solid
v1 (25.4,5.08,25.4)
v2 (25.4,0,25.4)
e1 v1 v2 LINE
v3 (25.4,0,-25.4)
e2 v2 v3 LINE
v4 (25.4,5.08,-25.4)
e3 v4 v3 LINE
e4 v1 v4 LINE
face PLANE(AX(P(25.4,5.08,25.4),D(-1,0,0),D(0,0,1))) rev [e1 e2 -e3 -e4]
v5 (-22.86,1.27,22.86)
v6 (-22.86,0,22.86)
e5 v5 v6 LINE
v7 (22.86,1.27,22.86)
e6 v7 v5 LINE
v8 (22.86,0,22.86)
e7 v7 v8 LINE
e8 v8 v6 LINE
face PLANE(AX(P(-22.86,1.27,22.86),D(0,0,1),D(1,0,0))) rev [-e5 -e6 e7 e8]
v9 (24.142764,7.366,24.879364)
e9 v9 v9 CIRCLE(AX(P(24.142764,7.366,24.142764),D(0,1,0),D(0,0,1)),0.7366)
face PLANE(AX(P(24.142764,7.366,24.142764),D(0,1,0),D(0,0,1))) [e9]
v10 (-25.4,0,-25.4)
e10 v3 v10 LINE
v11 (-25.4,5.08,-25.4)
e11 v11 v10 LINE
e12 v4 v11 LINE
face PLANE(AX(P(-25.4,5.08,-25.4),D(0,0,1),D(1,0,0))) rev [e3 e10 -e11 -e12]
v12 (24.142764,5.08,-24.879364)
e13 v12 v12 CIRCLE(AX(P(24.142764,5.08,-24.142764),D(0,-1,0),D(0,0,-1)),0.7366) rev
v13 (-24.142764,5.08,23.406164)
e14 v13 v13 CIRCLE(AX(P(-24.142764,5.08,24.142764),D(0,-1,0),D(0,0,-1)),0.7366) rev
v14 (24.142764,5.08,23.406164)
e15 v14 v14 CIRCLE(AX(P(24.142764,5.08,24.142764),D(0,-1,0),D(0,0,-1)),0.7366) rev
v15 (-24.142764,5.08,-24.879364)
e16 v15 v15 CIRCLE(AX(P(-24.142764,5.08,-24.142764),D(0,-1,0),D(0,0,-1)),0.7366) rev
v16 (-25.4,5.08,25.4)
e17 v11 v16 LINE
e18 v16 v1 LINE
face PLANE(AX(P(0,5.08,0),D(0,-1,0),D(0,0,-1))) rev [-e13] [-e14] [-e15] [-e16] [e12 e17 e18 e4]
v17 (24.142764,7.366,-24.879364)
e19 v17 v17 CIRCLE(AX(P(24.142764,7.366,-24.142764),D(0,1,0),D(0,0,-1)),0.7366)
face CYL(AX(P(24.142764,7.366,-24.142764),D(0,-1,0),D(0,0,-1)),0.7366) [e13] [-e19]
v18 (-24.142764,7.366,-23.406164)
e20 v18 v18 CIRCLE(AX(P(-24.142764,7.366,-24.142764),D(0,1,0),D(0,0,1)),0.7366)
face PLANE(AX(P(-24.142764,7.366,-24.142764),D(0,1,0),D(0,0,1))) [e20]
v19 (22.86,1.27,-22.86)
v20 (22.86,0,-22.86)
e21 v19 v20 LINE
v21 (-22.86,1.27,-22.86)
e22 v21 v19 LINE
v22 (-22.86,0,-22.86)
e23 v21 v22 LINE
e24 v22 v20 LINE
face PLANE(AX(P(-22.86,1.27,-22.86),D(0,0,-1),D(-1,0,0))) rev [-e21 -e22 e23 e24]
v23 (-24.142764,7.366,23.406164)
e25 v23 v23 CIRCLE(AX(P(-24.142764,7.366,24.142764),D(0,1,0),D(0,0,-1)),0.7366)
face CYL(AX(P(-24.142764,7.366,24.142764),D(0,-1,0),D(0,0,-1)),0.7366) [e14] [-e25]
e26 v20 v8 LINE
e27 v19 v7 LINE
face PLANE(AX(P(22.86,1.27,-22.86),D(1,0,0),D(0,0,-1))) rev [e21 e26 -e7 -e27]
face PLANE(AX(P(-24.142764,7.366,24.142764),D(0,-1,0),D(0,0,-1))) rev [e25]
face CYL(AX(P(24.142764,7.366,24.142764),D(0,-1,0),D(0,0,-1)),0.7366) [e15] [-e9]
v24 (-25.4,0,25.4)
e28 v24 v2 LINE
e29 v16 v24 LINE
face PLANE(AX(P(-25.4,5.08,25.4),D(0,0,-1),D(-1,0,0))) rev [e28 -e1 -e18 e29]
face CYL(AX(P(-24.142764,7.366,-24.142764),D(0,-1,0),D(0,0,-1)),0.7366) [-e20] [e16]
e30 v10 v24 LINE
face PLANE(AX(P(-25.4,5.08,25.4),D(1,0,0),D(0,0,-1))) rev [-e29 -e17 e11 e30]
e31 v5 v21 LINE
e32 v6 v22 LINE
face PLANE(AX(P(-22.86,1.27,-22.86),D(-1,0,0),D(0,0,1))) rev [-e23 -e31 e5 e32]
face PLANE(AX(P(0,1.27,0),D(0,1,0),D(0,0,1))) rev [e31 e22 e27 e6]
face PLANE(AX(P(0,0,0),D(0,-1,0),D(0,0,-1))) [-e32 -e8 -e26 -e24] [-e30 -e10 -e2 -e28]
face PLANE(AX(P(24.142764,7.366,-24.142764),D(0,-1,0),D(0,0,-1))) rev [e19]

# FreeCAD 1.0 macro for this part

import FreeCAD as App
import Part
import Sketcher

V = App.Vector
Q = App.Units.Quantity

doc = App.newDocument("Part")
body = doc.addObject("PartDesign::Body", "Body")

# Sketch on XZ plane
sketch1 = body.newObject("Sketcher::SketchObject", "Sketch")
sketch1.AttachmentSupport = (doc.getObject("XZ_Plane"), [""])
sketch1.MapMode = "FlatFace"
sketch1.addGeometry([
    Part.LineSegment(V(-25, -25, 0), V(-25, 25, 0)),
    Part.LineSegment(V(-25, 25, 0), V(25, 25, 0)),
    Part.LineSegment(V(25, 25, 0), V(25, -25, 0)),
    Part.LineSegment(V(25, -25, 0), V(-25, -25, 0)),
], False)
sketch1.addConstraint([
    Sketcher.Constraint("Coincident", 0, 2, 1, 1),
    Sketcher.Constraint("Coincident", 1, 2, 2, 1),
    Sketcher.Constraint("Coincident", 2, 2, 3, 1),
    Sketcher.Constraint("Coincident", 3, 2, 0, 1),
    Sketcher.Constraint("Vertical", 0),
    Sketcher.Constraint("Horizontal", 1),
    Sketcher.Constraint("Vertical", 2),
    Sketcher.Constraint("Horizontal", 3),
    Sketcher.Constraint("Symmetric", 0, 2, 2, 2, -1, 1),
    Sketcher.Constraint("Equal", 3, 0),
    Sketcher.Constraint("DistanceX", 1, 1, 1, 2, Q("2 in")),
])
pad1 = body.newObject("PartDesign::Pad", "Pad")
pad1.Profile = sketch1
pad1.Length = Q("0.2 in")
pad1.Reversed = True

# Sketch on XZ plane
sketch2 = body.newObject("Sketcher::SketchObject", "Sketch001")
sketch2.AttachmentSupport = (doc.getObject("XZ_Plane"), [""])
sketch2.MapMode = "FlatFace"
sketch2.AttachmentOffset = App.Placement(V(0, 0, -0.2 * 25.4), App.Rotation())
sketch2.addGeometry([
    Part.Circle(V(-24.1, -24.1, 0), V(0, 0, 1), 0.7),
    Part.Circle(V(24.1, -24.1, 0), V(0, 0, 1), 0.7),
    Part.Circle(V(24.1, 24.1, 0), V(0, 0, 1), 0.7),
    Part.Circle(V(-24.1, 24.1, 0), V(0, 0, 1), 0.7),
], False)
sketch2.addConstraint([
    Sketcher.Constraint("Equal", 0, 1),
    Sketcher.Constraint("Equal", 1, 2),
    Sketcher.Constraint("Equal", 2, 3),
    Sketcher.Constraint("Symmetric", 0, 3, 2, 3, -1, 1),
    Sketcher.Constraint("Symmetric", 1, 3, 3, 3, -1, 1),
    Sketcher.Constraint("Symmetric", 0, 3, 1, 3, -2),
    Sketcher.Constraint("Diameter", 0, Q("0.058 in")),
    Sketcher.Constraint("DistanceX", 0, 3, 1, 3, 48.285528),
    Sketcher.Constraint("DistanceY", 1, 3, 2, 3, 48.285528),
])
pad2 = body.newObject("PartDesign::Pad", "Pad001")
pad2.Profile = sketch2
pad2.Length = Q("0.09 in")
pad2.Reversed = True

# Sketch on XZ plane
sketch3 = body.newObject("Sketcher::SketchObject", "Sketch002")
sketch3.AttachmentSupport = (doc.getObject("XZ_Plane"), [""])
sketch3.MapMode = "FlatFace"
sketch3.addGeometry([
    Part.LineSegment(V(-23, 23, 0), V(-23, -23, 0)),
    Part.LineSegment(V(-23, -23, 0), V(23, -23, 0)),
    Part.LineSegment(V(23, -23, 0), V(23, 23, 0)),
    Part.LineSegment(V(23, 23, 0), V(-23, 23, 0)),
], False)
sketch3.addConstraint([
    Sketcher.Constraint("Coincident", 0, 2, 1, 1),
    Sketcher.Constraint("Coincident", 1, 2, 2, 1),
    Sketcher.Constraint("Coincident", 2, 2, 3, 1),
    Sketcher.Constraint("Coincident", 3, 2, 0, 1),
    Sketcher.Constraint("Vertical", 0),
    Sketcher.Constraint("Horizontal", 1),
    Sketcher.Constraint("Vertical", 2),
    Sketcher.Constraint("Horizontal", 3),
    Sketcher.Constraint("Symmetric", 0, 2, 2, 2, -1, 1),
    Sketcher.Constraint("Equal", 3, 0),
    Sketcher.Constraint("DistanceX", 1, 1, 1, 2, Q("1.8 in")),
])
pocket1 = body.newObject("PartDesign::Pocket", "Pocket")
pocket1.Profile = sketch3
pocket1.Length = Q("0.05 in")

doc.recompute()
